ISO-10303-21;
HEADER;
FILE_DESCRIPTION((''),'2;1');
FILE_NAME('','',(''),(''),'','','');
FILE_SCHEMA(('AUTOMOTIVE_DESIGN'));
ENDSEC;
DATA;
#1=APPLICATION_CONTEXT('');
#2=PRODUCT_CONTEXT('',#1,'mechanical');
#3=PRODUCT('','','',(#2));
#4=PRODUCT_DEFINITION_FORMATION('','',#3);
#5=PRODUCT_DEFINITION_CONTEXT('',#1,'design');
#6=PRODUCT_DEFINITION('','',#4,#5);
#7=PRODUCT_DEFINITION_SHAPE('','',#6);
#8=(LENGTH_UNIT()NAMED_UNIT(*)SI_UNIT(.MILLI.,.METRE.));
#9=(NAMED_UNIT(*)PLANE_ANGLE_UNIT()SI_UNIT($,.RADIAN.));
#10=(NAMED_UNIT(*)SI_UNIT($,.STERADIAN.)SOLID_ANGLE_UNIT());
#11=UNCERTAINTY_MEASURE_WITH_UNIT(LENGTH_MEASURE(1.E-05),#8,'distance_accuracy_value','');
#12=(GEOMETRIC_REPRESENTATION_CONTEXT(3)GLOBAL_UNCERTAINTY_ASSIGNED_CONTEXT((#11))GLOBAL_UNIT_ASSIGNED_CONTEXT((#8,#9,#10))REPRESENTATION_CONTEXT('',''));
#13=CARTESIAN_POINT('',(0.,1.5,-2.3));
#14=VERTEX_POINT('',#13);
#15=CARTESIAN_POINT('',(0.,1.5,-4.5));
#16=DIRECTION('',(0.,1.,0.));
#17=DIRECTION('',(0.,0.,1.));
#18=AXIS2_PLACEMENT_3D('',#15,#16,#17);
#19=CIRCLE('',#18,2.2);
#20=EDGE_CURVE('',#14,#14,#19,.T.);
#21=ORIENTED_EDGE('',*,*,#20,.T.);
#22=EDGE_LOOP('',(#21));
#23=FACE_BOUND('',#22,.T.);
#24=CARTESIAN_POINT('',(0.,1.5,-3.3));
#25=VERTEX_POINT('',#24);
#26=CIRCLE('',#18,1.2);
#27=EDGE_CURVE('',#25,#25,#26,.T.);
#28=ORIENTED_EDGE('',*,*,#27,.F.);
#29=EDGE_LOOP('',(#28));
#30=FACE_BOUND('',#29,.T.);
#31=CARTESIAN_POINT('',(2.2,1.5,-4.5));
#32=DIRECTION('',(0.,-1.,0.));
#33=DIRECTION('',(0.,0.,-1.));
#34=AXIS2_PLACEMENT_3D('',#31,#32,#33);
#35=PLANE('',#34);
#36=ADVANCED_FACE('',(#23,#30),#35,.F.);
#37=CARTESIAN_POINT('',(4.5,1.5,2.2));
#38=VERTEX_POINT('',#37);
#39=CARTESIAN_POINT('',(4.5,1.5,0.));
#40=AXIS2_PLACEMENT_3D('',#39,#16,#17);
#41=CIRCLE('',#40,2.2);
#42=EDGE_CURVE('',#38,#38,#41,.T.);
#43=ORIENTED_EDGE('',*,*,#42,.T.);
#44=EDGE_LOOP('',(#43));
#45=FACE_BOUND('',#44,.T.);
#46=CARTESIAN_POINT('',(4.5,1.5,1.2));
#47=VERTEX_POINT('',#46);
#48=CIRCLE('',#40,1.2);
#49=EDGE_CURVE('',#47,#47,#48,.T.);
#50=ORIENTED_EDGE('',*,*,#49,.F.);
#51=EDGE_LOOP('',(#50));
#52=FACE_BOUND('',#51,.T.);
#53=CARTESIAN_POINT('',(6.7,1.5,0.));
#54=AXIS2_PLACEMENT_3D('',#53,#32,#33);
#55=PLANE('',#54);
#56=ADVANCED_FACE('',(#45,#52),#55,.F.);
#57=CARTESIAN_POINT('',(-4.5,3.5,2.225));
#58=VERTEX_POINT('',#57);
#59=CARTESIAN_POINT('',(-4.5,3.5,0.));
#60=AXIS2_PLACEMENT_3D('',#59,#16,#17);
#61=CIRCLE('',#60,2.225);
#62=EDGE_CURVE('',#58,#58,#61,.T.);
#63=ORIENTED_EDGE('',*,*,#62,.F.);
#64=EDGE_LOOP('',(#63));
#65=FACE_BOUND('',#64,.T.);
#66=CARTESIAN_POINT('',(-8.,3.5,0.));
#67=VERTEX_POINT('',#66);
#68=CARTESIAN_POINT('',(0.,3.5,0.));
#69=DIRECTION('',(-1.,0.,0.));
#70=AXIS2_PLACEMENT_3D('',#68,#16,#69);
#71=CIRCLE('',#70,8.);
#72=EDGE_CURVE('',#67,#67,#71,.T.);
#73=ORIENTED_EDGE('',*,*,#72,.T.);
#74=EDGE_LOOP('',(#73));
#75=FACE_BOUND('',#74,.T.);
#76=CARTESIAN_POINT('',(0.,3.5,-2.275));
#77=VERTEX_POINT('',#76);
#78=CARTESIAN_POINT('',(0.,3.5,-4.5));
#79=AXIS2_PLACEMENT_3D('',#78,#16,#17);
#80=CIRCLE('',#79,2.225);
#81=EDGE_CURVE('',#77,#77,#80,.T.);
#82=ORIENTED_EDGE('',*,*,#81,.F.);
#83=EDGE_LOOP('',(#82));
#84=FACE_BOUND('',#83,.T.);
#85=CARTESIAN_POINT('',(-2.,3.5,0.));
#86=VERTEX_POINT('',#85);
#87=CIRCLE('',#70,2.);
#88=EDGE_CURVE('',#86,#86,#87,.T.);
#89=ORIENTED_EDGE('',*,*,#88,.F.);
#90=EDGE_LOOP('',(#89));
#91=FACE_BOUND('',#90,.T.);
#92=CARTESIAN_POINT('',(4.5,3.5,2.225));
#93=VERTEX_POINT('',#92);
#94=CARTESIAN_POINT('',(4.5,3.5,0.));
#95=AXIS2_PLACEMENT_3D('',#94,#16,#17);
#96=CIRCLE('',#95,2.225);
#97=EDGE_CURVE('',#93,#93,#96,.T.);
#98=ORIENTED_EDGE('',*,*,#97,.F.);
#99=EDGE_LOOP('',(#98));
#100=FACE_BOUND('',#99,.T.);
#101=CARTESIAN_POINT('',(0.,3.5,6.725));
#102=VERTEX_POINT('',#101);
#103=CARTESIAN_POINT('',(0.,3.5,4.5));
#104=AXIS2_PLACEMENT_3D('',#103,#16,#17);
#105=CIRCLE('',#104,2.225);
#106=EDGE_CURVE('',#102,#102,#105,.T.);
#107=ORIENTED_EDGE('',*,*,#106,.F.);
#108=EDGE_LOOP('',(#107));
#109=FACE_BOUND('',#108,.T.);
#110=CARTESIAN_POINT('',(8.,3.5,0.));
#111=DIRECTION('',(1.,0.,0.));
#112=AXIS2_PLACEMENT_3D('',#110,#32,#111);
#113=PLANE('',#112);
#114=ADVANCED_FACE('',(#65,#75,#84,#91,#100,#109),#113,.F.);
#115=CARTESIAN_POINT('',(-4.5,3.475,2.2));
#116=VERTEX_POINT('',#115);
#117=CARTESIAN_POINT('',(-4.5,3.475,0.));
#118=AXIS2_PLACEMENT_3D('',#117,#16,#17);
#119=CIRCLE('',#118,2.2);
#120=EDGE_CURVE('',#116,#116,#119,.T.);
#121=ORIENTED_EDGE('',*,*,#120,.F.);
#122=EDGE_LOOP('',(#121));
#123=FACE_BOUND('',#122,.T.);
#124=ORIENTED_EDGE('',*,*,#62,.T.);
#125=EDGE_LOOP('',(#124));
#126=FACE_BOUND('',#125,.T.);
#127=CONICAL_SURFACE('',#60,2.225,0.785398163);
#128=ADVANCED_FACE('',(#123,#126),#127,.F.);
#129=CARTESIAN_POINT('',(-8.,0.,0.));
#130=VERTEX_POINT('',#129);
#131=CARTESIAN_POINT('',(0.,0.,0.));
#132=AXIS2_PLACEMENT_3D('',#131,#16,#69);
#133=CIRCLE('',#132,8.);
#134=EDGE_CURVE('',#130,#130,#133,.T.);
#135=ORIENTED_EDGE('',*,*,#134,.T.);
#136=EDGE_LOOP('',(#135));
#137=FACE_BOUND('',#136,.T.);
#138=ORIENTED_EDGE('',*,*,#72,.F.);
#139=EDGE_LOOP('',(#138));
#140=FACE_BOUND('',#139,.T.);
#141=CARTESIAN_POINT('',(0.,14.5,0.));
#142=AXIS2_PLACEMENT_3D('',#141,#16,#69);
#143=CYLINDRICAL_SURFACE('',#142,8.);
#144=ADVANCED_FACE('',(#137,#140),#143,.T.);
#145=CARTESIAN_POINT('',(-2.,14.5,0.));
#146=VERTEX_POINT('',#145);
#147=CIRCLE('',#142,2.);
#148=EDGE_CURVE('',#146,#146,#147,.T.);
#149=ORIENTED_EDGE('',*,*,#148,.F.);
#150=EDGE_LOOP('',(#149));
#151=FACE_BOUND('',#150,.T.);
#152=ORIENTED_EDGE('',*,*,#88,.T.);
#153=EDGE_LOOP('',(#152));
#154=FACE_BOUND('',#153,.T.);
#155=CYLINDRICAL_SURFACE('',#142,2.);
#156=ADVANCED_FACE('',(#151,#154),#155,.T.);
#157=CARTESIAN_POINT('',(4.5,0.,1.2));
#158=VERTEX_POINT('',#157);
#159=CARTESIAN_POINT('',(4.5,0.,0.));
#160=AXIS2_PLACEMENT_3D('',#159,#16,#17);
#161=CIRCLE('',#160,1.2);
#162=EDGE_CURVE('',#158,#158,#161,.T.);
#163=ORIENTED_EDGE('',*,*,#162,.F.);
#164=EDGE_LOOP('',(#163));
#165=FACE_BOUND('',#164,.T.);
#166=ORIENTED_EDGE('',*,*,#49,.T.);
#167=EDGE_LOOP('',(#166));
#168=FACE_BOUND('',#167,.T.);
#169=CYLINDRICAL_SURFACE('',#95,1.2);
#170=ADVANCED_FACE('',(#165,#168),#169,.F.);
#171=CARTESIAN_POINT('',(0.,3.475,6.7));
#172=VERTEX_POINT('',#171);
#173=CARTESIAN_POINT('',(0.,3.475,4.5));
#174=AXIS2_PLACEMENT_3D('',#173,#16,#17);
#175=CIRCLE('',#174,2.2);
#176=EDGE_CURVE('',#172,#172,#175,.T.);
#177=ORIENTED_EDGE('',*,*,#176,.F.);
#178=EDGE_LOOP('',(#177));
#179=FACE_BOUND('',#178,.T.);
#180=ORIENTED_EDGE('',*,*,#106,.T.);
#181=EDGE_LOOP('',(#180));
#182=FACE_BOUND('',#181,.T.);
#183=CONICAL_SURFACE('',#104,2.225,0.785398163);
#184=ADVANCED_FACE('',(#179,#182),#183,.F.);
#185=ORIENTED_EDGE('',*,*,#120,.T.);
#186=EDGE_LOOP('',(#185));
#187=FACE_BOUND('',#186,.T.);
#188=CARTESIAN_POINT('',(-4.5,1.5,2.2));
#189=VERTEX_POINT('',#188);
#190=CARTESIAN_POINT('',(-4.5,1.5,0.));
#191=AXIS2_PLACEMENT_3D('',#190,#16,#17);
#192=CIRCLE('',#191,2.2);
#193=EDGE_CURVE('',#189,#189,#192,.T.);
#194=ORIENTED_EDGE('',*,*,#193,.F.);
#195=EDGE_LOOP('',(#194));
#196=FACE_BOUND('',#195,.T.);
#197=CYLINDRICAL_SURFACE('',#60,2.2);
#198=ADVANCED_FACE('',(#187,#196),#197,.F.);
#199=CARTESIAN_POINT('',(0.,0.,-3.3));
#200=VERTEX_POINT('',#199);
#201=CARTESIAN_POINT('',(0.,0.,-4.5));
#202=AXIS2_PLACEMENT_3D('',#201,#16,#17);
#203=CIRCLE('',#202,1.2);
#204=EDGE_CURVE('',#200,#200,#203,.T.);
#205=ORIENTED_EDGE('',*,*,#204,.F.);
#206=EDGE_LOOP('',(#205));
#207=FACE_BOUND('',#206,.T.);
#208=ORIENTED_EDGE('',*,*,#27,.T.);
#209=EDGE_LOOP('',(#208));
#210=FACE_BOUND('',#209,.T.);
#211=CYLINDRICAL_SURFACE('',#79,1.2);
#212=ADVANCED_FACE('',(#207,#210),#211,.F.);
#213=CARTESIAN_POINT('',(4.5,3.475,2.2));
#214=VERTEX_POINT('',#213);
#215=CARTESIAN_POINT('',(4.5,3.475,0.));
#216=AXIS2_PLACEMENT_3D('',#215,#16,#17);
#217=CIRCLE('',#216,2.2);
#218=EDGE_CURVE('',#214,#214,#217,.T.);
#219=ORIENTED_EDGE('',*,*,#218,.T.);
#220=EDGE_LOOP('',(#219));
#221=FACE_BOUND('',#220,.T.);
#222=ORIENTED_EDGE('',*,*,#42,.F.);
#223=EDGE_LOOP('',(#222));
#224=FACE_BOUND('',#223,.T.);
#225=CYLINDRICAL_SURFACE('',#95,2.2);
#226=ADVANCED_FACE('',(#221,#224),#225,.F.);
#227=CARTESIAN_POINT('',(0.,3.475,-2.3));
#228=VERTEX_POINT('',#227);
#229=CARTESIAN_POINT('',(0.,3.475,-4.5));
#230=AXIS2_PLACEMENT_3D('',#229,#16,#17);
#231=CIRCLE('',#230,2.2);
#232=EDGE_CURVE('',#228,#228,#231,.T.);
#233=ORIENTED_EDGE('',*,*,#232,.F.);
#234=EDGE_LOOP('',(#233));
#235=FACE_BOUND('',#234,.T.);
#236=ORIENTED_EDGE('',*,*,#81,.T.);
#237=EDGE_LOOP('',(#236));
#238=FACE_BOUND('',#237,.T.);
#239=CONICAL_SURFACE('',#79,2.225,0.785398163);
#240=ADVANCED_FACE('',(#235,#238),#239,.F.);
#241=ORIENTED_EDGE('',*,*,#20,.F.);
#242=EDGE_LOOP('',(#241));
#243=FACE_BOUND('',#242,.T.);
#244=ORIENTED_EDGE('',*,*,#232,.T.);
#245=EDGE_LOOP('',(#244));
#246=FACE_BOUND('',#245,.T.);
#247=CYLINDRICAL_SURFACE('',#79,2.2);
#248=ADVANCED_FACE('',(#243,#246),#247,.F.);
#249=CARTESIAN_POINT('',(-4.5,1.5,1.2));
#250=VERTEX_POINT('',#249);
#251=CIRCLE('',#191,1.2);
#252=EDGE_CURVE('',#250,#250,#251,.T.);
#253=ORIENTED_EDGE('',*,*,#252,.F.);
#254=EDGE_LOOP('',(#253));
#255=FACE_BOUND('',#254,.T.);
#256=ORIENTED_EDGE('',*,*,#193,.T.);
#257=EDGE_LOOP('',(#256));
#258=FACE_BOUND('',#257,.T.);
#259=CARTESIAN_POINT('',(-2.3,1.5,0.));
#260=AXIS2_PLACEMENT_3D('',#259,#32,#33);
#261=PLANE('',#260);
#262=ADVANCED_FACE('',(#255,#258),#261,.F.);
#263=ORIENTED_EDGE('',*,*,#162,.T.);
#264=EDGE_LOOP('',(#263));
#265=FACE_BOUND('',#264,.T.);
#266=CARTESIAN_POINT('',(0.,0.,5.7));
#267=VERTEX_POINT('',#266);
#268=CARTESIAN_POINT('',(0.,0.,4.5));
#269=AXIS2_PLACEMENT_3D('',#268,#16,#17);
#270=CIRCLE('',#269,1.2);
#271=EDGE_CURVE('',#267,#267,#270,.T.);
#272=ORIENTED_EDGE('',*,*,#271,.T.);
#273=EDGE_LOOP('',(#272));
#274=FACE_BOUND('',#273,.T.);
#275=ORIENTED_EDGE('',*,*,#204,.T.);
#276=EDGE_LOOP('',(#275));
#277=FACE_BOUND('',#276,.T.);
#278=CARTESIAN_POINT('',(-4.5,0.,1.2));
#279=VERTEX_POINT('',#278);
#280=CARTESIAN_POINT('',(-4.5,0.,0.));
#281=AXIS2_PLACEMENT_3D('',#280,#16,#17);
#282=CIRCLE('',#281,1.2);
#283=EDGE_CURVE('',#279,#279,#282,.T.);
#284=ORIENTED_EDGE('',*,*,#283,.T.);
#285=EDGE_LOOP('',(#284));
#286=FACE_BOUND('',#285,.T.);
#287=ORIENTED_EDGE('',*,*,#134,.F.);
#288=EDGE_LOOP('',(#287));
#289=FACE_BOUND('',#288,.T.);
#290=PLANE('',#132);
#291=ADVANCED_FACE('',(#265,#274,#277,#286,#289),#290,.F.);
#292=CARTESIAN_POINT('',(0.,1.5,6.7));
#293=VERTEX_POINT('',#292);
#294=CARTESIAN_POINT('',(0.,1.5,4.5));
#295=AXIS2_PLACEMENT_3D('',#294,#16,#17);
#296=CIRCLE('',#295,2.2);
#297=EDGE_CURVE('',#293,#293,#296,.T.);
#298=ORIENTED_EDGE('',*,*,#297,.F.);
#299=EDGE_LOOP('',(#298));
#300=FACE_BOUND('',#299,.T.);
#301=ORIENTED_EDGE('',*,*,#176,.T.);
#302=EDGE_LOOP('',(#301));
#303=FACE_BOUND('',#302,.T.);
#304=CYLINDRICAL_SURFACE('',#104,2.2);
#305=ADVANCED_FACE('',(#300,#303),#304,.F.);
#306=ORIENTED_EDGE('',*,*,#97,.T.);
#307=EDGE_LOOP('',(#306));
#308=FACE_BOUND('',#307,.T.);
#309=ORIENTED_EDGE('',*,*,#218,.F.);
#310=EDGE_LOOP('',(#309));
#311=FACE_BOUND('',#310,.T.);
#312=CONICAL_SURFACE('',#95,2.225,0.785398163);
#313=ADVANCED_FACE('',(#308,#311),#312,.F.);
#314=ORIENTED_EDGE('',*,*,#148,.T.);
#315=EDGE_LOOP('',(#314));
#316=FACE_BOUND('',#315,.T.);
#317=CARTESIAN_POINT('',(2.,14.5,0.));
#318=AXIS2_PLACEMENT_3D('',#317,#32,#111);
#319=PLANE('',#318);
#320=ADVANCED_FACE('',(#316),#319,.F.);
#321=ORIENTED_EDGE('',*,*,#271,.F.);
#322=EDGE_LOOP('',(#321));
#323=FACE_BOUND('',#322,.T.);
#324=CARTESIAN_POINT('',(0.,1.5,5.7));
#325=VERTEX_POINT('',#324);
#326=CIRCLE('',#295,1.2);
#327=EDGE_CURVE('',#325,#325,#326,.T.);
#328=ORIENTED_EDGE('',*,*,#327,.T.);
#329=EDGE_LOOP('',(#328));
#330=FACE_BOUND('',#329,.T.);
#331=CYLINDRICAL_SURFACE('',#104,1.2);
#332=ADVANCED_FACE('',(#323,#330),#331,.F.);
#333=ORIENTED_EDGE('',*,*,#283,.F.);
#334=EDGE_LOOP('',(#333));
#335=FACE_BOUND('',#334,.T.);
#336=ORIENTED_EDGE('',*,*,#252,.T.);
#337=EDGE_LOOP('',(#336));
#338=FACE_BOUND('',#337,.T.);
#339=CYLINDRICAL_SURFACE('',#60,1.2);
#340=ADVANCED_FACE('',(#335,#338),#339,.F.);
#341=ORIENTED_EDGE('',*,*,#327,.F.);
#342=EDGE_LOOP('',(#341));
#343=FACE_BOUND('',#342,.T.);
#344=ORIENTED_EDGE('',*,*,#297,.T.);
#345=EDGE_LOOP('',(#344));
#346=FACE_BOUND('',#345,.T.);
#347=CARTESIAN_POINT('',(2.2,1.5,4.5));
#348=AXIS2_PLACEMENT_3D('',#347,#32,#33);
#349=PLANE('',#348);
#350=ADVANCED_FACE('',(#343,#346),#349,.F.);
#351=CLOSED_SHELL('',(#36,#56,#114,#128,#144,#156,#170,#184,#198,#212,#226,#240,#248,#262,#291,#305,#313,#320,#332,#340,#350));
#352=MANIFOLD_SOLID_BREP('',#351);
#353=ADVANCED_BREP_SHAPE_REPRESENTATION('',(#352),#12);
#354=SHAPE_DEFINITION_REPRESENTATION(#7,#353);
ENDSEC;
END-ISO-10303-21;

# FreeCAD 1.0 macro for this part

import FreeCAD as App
import Part
import Sketcher
from FreeCAD import Vector
Q = App.Units.Quantity


def add_polygon(sketch, points):
    """Adds a closed chain of lines whose ends are joined by coincident constraints."""
    first, n = sketch.GeometryCount, len(points)
    for a, b in zip(points, points[1:] + points[:1]):
        sketch.addGeometry(Part.LineSegment(App.Vector(*a, 0), App.Vector(*b, 0)), False)
    for i in range(n):
        sketch.addConstraint(Sketcher.Constraint("Coincident", first + i, 2, first + (i + 1) % n, 1))

doc = App.newDocument("Part")
body = doc.addObject("PartDesign::Body", "Body")

# Sketch on XY plane
sketch1 = body.newObject("Sketcher::SketchObject", "Sketch")
sketch1.AttachmentSupport = (doc.getObject("XY_Plane"), [""])
sketch1.MapMode = "FlatFace"
add_polygon(sketch1, [(0, 0), (8, 0), (8, 3.5), (2, 3.5), (2, 14.5), (0, 14.5)])  # lines 0-5
sketch1.addConstraint([
    Sketcher.Constraint("Horizontal", 0),
    Sketcher.Constraint("Vertical", 1),
    Sketcher.Constraint("Horizontal", 2),
    Sketcher.Constraint("Vertical", 3),
    Sketcher.Constraint("Horizontal", 4),
    Sketcher.Constraint("Vertical", 5),
    Sketcher.Constraint("Coincident", 5, 2, -1, 1),
    Sketcher.Constraint("DistanceX", 0, 1, 0, 2, Q("8 mm")),
    Sketcher.Constraint("DistanceX", 2, 2, 2, 1, Q("6 mm")),
    Sketcher.Constraint("DistanceY", 3, 1, 3, 2, Q("11 mm")),
    Sketcher.Constraint("DistanceY", 1, 1, 1, 2, Q("3.5 mm")),
])
revolution = body.newObject("PartDesign::Revolution", "Revolution")
revolution.Profile = sketch1
revolution.ReferenceAxis = (sketch1, ["V_Axis"])
revolution.Angle = 360

# Sketch on YZ plane
sketch2 = body.newObject("Sketcher::SketchObject", "Sketch001")
sketch2.AttachmentSupport = (doc.getObject("YZ_Plane"), [""])
sketch2.MapMode = "FlatFace"
sketch2.AttachmentOffset = App.Placement(Vector(0, 0, -4.5), App.Rotation())
add_polygon(sketch2, [(0, 0), (3.5, 0), (3.5, 2.225), (3.475, 2.2), (1.5, 2.2), (1.5, 1.2), (0, 1.2)])  # lines 0-6
sketch2.addConstraint([
    Sketcher.Constraint("Horizontal", 0),
    Sketcher.Constraint("Vertical", 1),
    Sketcher.Constraint("Horizontal", 3),
    Sketcher.Constraint("Vertical", 4),
    Sketcher.Constraint("Horizontal", 5),
    Sketcher.Constraint("Vertical", 6),
    Sketcher.Constraint("Coincident", 6, 2, -1, 1),
    Sketcher.Constraint("DistanceY", 4, 2, 4, 1, Q("1 mm")),
    Sketcher.Constraint("Angle", 2, Q("-135 deg")),
    Sketcher.Constraint("DistanceX", 0, 1, 0, 2, Q("3.5 mm")),
    Sketcher.Constraint("DistanceX", 5, 2, 5, 1, Q("1.5 mm")),
    Sketcher.Constraint("DistanceY", 6, 2, 6, 1, Q("1.2 mm")),
    Sketcher.Constraint("DistanceX", 3, 2, 3, 1, Q("1.975 mm")),
])
groove = body.newObject("PartDesign::Groove", "Groove")
groove.Profile = sketch2
groove.ReferenceAxis = (sketch2, ["H_Axis"])
groove.Angle = 360
doc.recompute()

datumline = body.newObject("PartDesign::Line", "DatumLine")
datumline.Placement = App.Placement(Vector(0, 0, 0), App.Rotation(Vector(0, 0, 1), Vector(0.707106781, 0, -0.707106781)))
linearpattern = body.newObject("PartDesign::LinearPattern", "LinearPattern")
linearpattern.Originals = [groove]
linearpattern.Direction = (datumline, [""])
linearpattern.Mode = "offset"
linearpattern.Offset = 6.363961
linearpattern.Occurrences = 2
body.Tip = linearpattern
doc.recompute()

linearpattern2 = body.newObject("PartDesign::LinearPattern", "LinearPattern001")
linearpattern2.Originals = [groove]
linearpattern2.Direction = (doc.getObject("X_Axis"), [""])
linearpattern2.Mode = "offset"
linearpattern2.Offset = 9
linearpattern2.Occurrences = 2
body.Tip = linearpattern2
doc.recompute()

datumline2 = body.newObject("PartDesign::Line", "DatumLine001")
datumline2.Placement = App.Placement(Vector(0, 0, 0), App.Rotation(Vector(0, 0, 1), Vector(0.707106781, 0, 0.707106781)))
linearpattern3 = body.newObject("PartDesign::LinearPattern", "LinearPattern002")
linearpattern3.Originals = [groove]
linearpattern3.Direction = (datumline2, [""])
linearpattern3.Mode = "offset"
linearpattern3.Offset = 6.363961
linearpattern3.Occurrences = 2
body.Tip = linearpattern3

doc.recompute()
